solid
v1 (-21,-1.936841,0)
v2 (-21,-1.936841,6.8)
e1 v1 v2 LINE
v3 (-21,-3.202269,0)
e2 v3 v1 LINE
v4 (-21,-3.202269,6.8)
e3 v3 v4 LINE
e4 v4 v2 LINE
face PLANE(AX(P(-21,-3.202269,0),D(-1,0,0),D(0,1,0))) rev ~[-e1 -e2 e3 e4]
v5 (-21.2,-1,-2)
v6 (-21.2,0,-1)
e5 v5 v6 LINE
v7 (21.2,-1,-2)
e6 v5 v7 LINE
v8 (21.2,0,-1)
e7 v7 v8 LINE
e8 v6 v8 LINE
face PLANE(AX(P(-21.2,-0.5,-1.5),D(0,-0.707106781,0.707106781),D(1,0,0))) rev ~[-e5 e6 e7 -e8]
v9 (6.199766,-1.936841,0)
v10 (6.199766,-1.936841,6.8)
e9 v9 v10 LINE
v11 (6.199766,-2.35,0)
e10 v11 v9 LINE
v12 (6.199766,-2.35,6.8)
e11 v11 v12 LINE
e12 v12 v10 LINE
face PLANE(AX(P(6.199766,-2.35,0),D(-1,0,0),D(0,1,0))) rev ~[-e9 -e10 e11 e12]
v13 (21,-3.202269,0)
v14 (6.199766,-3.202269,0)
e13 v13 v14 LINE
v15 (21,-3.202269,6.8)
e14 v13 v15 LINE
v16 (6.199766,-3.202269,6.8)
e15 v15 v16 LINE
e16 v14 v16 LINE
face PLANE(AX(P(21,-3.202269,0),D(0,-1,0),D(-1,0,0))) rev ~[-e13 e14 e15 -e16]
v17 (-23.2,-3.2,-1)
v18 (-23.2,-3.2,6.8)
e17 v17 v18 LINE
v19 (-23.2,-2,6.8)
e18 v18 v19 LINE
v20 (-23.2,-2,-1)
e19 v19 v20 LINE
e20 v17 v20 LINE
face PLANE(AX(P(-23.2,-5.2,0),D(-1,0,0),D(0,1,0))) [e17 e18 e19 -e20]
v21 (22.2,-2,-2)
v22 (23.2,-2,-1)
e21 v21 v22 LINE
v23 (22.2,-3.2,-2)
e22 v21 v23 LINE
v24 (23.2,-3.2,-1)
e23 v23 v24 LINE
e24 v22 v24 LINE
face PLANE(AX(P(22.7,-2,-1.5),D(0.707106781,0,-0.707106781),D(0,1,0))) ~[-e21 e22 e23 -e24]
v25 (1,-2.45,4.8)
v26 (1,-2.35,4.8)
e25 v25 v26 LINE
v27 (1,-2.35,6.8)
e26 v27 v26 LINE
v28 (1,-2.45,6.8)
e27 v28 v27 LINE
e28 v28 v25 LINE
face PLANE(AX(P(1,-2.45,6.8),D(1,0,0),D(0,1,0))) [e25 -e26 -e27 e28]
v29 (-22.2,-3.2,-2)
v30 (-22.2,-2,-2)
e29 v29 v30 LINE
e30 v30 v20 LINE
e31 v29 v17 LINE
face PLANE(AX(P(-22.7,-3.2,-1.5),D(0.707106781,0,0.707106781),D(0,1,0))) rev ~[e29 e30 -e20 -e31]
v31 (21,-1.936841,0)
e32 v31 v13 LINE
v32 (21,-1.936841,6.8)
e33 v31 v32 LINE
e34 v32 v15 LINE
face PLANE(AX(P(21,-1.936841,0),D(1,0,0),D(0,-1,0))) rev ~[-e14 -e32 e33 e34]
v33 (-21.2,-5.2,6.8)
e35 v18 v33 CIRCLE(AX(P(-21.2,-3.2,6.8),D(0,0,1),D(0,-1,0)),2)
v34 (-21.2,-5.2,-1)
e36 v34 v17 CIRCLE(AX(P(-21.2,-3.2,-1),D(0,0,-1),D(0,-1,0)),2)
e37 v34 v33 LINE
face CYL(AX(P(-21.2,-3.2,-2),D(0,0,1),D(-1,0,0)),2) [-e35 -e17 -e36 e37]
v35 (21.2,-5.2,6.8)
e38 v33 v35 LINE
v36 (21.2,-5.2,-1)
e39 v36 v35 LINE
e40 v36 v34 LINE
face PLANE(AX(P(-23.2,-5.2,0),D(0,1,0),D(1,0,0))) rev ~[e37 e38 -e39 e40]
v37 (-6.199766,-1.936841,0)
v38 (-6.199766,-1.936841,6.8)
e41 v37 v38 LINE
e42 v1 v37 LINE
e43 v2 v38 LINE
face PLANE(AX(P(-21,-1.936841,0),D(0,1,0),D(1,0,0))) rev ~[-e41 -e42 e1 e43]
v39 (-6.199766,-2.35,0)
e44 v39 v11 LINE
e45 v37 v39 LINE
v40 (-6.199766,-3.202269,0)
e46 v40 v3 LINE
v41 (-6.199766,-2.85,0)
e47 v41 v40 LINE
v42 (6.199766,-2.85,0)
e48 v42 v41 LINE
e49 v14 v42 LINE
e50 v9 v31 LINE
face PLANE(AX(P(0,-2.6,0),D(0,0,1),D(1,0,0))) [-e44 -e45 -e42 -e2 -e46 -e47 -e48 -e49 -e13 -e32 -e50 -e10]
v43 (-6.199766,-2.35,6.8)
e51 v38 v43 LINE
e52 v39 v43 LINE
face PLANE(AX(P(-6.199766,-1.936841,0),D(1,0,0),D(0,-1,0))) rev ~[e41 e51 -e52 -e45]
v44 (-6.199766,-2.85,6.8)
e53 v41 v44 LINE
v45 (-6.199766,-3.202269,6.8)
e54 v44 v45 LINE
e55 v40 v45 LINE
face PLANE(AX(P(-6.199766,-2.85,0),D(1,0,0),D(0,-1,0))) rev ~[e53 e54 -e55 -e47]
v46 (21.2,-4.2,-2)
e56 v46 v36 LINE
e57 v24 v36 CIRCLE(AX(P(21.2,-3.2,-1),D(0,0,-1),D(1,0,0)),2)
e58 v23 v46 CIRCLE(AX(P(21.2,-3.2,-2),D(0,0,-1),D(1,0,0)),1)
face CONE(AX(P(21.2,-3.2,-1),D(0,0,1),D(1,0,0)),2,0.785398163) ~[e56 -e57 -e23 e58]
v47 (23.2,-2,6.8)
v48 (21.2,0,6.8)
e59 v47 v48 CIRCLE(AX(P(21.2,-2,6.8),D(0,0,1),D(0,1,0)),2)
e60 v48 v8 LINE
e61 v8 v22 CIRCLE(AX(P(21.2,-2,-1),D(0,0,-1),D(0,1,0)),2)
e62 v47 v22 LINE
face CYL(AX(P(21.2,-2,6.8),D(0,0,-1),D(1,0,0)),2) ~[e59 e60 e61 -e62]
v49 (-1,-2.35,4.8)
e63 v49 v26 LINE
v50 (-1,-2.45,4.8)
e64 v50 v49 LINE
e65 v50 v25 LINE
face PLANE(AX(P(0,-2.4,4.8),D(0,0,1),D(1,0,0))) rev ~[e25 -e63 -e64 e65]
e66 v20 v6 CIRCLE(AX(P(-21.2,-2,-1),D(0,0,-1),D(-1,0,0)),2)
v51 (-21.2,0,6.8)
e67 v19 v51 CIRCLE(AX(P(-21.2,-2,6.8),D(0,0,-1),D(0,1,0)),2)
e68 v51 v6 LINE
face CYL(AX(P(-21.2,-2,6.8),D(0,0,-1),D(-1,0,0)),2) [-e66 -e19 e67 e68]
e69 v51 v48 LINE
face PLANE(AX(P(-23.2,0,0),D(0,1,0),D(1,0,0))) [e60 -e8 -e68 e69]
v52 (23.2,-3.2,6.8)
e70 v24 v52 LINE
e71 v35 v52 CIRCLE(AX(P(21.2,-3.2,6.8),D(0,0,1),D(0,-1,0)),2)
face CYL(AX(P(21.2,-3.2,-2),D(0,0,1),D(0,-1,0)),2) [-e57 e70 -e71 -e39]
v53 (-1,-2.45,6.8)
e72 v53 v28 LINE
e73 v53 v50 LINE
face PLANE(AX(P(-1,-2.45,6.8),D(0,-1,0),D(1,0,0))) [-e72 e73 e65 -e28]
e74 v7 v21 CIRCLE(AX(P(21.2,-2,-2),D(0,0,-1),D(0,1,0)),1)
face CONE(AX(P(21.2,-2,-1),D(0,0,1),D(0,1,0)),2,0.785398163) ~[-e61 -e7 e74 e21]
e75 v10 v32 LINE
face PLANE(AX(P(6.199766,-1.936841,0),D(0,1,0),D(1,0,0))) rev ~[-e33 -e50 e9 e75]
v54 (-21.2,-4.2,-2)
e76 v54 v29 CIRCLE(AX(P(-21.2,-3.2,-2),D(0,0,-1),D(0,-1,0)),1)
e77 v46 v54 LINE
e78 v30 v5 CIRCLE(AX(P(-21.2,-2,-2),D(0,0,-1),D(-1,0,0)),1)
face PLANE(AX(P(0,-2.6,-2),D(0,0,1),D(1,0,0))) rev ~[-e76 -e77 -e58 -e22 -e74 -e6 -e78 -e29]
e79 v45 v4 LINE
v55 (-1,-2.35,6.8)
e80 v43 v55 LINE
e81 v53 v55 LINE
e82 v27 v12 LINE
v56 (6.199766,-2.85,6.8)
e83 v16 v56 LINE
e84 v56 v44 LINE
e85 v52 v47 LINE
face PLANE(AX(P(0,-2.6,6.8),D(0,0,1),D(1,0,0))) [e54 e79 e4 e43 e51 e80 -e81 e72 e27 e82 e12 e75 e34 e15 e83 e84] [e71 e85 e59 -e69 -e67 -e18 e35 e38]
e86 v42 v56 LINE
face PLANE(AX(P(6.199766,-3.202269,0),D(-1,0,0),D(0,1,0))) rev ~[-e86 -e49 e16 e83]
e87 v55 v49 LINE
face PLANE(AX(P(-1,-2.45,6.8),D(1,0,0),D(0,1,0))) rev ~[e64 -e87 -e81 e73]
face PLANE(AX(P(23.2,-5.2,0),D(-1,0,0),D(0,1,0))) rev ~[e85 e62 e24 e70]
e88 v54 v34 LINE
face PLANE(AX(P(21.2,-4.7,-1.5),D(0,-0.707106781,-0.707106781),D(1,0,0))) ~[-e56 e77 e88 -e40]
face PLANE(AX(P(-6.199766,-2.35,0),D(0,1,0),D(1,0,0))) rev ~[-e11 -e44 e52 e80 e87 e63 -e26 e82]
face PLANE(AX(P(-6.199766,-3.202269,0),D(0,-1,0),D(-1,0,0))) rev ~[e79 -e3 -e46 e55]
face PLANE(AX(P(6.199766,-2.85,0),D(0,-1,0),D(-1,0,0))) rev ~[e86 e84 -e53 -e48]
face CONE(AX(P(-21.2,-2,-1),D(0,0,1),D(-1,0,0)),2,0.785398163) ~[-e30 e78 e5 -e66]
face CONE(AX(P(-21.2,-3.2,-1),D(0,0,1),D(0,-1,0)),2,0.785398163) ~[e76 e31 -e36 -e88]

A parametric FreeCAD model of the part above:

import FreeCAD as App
import Part
import Sketcher

V = App.Vector


def edges_at(feature, points):
    """Names of the edges that pass closest to the given points."""
    edges = feature.Shape.Edges
    near = lambda p: min(range(len(edges)), key=lambda i: edges[i].distToShape(Part.Vertex(*p))[0])
    return sorted({f"Edge{near(p) + 1}" for p in points})


def add_polygon(sketch, points):
    """Adds a closed chain of lines whose ends are joined by coincident constraints."""
    first, n = sketch.GeometryCount, len(points)
    for a, b in zip(points, points[1:] + points[:1]):
        sketch.addGeometry(Part.LineSegment(App.Vector(*a, 0), App.Vector(*b, 0)), False)
    for i in range(n):
        sketch.addConstraint(Sketcher.Constraint("Coincident", first + i, 2, first + (i + 1) % n, 1))

doc = App.newDocument("Part")
params = doc.addObject("Spreadsheet::Sheet", "Params")
for row, (alias, value) in enumerate([
    ("sketch1_width", "46.4 mm"),
    ("sketch1_height", "5.2 mm"),
    ("pad1_length", "2 mm"),
    ("sketch2_width", "46.4 mm"),
    ("sketch2_height", "5.2 mm"),
    ("pad2_length", "6.8 mm"),
    ("fillet_radius", "2 mm"),
    ("chamfer_size", "1 mm"),
    ("sketch3_width", "2 mm"),
    ("sketch3_height", "0.1 mm"),
    ("pad3_length", "2 mm"),
], start=1):
    params.set(f"A{row}", alias)
    params.set(f"B{row}", "=" + value)
    params.setAlias(f"B{row}", alias)

body = doc.addObject("PartDesign::Body", "Body")

# Sketch on XY plane
sketch1 = body.newObject("Sketcher::SketchObject", "Sketch")
sketch1.AttachmentSupport = (doc.getObject("XY_Plane"), [""])
sketch1.MapMode = "FlatFace"
add_polygon(sketch1, [(-23.2, 0), (-23.2, -5.2), (23.2, -5.2), (23.2, 0)])  # lines 0-3
sketch1.addConstraint(Sketcher.Constraint("Vertical", 0))
sketch1.addConstraint(Sketcher.Constraint("Horizontal", 1))
sketch1.addConstraint(Sketcher.Constraint("Vertical", 2))
sketch1.addConstraint(Sketcher.Constraint("Horizontal", 3))
sketch1.addConstraint(Sketcher.Constraint("Symmetric", 2, 2, 3, 2, -1, 1))
sketch1.addConstraint(Sketcher.Constraint("DistanceX", 1, 1, 1, 2, 46.4))
sketch1.addConstraint(Sketcher.Constraint("DistanceY", 0, 2, 0, 1, 5.2))
sketch1.setExpression("Constraints[9]", "Params.sketch1_width")
sketch1.setExpression("Constraints[10]", "Params.sketch1_height")
pad1 = body.newObject("PartDesign::Pad", "Pad")
pad1.Profile = sketch1
pad1.setExpression("Length", "Params.pad1_length")
pad1.Reversed = True

# Sketch on XY plane
sketch2 = body.newObject("Sketcher::SketchObject", "Sketch001")
sketch2.AttachmentSupport = (doc.getObject("XY_Plane"), [""])
sketch2.MapMode = "FlatFace"
add_polygon(sketch2, [(-23.2, 0), (-23.2, -5.2), (23.2, -5.2), (23.2, 0)])  # lines 0-3
add_polygon(sketch2, [(-21, -3.202269), (-21, -1.936841), (-6.199766, -1.936841), (-6.199766, -2.35), (6.199766, -2.35), (6.199766, -1.936841), (21, -1.936841), (21, -3.202269), (6.199766, -3.202269), (6.199766, -2.85), (-6.199766, -2.85), (-6.199766, -3.202269)])  # lines 4-15
sketch2.addConstraint(Sketcher.Constraint("Vertical", 0))
sketch2.addConstraint(Sketcher.Constraint("Horizontal", 1))
sketch2.addConstraint(Sketcher.Constraint("Vertical", 2))
sketch2.addConstraint(Sketcher.Constraint("Horizontal", 3))
sketch2.addConstraint(Sketcher.Constraint("Vertical", 4))
sketch2.addConstraint(Sketcher.Constraint("Horizontal", 5))
sketch2.addConstraint(Sketcher.Constraint("Vertical", 6))
sketch2.addConstraint(Sketcher.Constraint("Horizontal", 7))
sketch2.addConstraint(Sketcher.Constraint("Vertical", 8))
sketch2.addConstraint(Sketcher.Constraint("Horizontal", 9))
sketch2.addConstraint(Sketcher.Constraint("Vertical", 10))
sketch2.addConstraint(Sketcher.Constraint("Horizontal", 11))
sketch2.addConstraint(Sketcher.Constraint("Vertical", 12))
sketch2.addConstraint(Sketcher.Constraint("Horizontal", 13))
sketch2.addConstraint(Sketcher.Constraint("Vertical", 14))
sketch2.addConstraint(Sketcher.Constraint("Horizontal", 15))
sketch2.addConstraint(Sketcher.Constraint("Symmetric", 2, 2, 3, 2, -1, 1))
sketch2.addConstraint(Sketcher.Constraint("Symmetric", 5, 2, 8, 2, -2))
sketch2.addConstraint(Sketcher.Constraint("Symmetric", 11, 2, 14, 2, -2))
sketch2.addConstraint(Sketcher.Constraint("Vertical", 8, 2, 11, 2))
sketch2.addConstraint(Sketcher.Constraint("Equal", 5, 9))
sketch2.addConstraint(Sketcher.Constraint("DistanceX", 1, 1, 1, 2, 46.4))
sketch2.addConstraint(Sketcher.Constraint("DistanceY", 0, 2, 0, 1, 5.2))
sketch2.addConstraint(Sketcher.Constraint("DistanceX", 4, 2, -1, 1, 21.0))
sketch2.addConstraint(Sketcher.Constraint("DistanceY", 12, 2, 7, 2, 0.5))
sketch2.addConstraint(Sketcher.Constraint("DistanceY", 6, 2, -1, 1, 2.35))
sketch2.addConstraint(Sketcher.Constraint("DistanceX", 7, 1, 7, 2, 12.399532))
sketch2.addConstraint(Sketcher.Constraint("DistanceY", 4, 1, 4, 2, 1.265428))
sketch2.addConstraint(Sketcher.Constraint("DistanceY", 6, 2, 6, 1, 0.413159))
sketch2.setExpression("Constraints[37]", "Params.sketch2_width")
sketch2.setExpression("Constraints[38]", "Params.sketch2_height")
pad2 = body.newObject("PartDesign::Pad", "Pad001")
pad2.Profile = sketch2
pad2.setExpression("Length", "Params.pad2_length")
doc.recompute()

fillet = body.newObject("PartDesign::Fillet", "Fillet")
fillet.Base = (pad2, edges_at(pad2, [
    (23.2, -5.2, 2.4),
    (23.2, 0, 2.4),
    (-23.2, -5.2, 2.4),
    (-23.2, 0, 2.4),
]))
fillet.setExpression("Radius", "Params.fillet_radius")
doc.recompute()

chamfer = body.newObject("PartDesign::Chamfer", "Chamfer")
chamfer.Base = (fillet, edges_at(fillet, [
    (0, 0, -2),
    (22.614, -0.586, -2),
    (-22.614, -0.586, -2),
    (23.2, -2.6, -2),
    (-23.2, -2.6, -2),
    (22.614, -4.614, -2),
    (-22.614, -4.614, -2),
    (0, -5.2, -2),
]))
chamfer.setExpression("Size", "Params.chamfer_size")

# Sketch on XY plane
sketch3 = body.newObject("Sketcher::SketchObject", "Sketch002")
sketch3.AttachmentSupport = (doc.getObject("XY_Plane"), [""])
sketch3.MapMode = "FlatFace"
sketch3.AttachmentOffset = App.Placement(V(0, 0, 6.8), App.Rotation())
add_polygon(sketch3, [(-1, -2.35), (-1, -2.45), (1, -2.45), (1, -2.35)])  # lines 0-3
sketch3.addConstraint(Sketcher.Constraint("Vertical", 0))
sketch3.addConstraint(Sketcher.Constraint("Horizontal", 1))
sketch3.addConstraint(Sketcher.Constraint("Vertical", 2))
sketch3.addConstraint(Sketcher.Constraint("Horizontal", 3))
sketch3.addConstraint(Sketcher.Constraint("DistanceX", 1, 1, 1, 2, 2.0))
sketch3.addConstraint(Sketcher.Constraint("DistanceY", 0, 2, 0, 1, 0.1))
sketch3.addConstraint(Sketcher.Constraint("DistanceX", 0, 2, -1, 1, 1.0))
sketch3.addConstraint(Sketcher.Constraint("DistanceY", 0, 2, -1, 1, 2.45))
sketch3.setExpression("Constraints[8]", "Params.sketch3_width")
sketch3.setExpression("Constraints[9]", "Params.sketch3_height")
pad3 = body.newObject("PartDesign::Pad", "Pad002")
pad3.Profile = sketch3
pad3.setExpression("Length", "Params.pad3_length")
pad3.Reversed = True

doc.recompute()
